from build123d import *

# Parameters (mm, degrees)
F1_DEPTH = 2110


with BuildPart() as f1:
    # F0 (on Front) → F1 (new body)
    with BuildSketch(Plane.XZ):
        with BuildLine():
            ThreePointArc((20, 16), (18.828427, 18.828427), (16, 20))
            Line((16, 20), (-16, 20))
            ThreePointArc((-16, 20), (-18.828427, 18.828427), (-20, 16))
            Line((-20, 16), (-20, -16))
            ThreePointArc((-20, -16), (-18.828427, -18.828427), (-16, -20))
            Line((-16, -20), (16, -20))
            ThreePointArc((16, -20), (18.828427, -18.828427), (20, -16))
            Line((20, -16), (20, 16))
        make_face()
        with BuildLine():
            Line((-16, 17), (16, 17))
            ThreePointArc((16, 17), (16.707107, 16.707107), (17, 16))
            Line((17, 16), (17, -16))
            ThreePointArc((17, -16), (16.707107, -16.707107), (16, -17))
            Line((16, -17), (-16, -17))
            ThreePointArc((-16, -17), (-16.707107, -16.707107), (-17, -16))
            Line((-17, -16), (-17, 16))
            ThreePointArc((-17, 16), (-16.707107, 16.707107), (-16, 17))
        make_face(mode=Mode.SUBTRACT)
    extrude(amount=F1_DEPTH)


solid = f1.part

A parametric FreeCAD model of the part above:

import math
import FreeCAD as App
import Part
import Sketcher
from FreeCAD import Vector
Q = App.Units.Quantity

doc = App.newDocument("Part")
params = doc.addObject("Spreadsheet::Sheet", "Params")
for row, (alias, value) in enumerate([
    ("sketch1_radius", "4 mm"),
    ("sketch1_radius2", "0.999999 mm"),
    ("sketch1_width", "32 mm"),
    ("pad1_length", "2110 mm"),
], start=1):
    params.set(f"A{row}", alias)
    params.set(f"B{row}", "=" + value)
    params.setAlias(f"B{row}", alias)

body = doc.addObject("PartDesign::Body", "Body")

# Sketch on XZ plane
sketch1 = body.newObject("Sketcher::SketchObject", "Sketch")
sketch1.AttachmentSupport = (doc.getObject("XZ_Plane"), [""])
sketch1.MapMode = "FlatFace"
sketch1.addGeometry([
    Part.ArcOfCircle(Part.Circle(Vector(16, 16, 0), Vector(0, 0, 1), 4), math.radians(0), math.radians(90)),  # 0
    Part.LineSegment(Vector(16, 20, 0), Vector(-16, 20, 0)),  # 1
    Part.ArcOfCircle(Part.Circle(Vector(-16, 16, 0), Vector(0, 0, 1), 4), math.radians(90), math.radians(180)),  # 2
    Part.LineSegment(Vector(-20, 16, 0), Vector(-20, -16, 0)),  # 3
    Part.ArcOfCircle(Part.Circle(Vector(-16, -16, 0), Vector(0, 0, 1), 4), math.radians(-180), math.radians(-90)),  # 4
    Part.LineSegment(Vector(-16, -20, 0), Vector(16, -20, 0)),  # 5
    Part.ArcOfCircle(Part.Circle(Vector(16, -16, 0), Vector(0, 0, 1), 4), math.radians(-90), math.radians(0)),  # 6
    Part.LineSegment(Vector(20, -16, 0), Vector(20, 16, 0)),  # 7
    Part.ArcOfCircle(Part.Circle(Vector(-16, 16, 0), Vector(0, 0, 1), 1), math.radians(90), math.radians(180)),  # 8
    Part.LineSegment(Vector(-16, 17, 0), Vector(16, 17, 0)),  # 9
    Part.ArcOfCircle(Part.Circle(Vector(16, 16, 0), Vector(0, 0, 1), 1), math.radians(0), math.radians(90)),  # 10
    Part.LineSegment(Vector(17, 16, 0), Vector(17, -16, 0)),  # 11
    Part.ArcOfCircle(Part.Circle(Vector(16, -16, 0), Vector(0, 0, 1), 1), math.radians(-90), math.radians(0)),  # 12
    Part.LineSegment(Vector(16, -17, 0), Vector(-16, -17, 0)),  # 13
    Part.ArcOfCircle(Part.Circle(Vector(-16, -16, 0), Vector(0, 0, 1), 1), math.radians(180), math.radians(270)),  # 14
    Part.LineSegment(Vector(-17, -16, 0), Vector(-17, 16, 0)),  # 15
], False)
sketch1.addConstraint([
    Sketcher.Constraint("Tangent", 0, 2, 1, 1),
    Sketcher.Constraint("Tangent", 1, 2, 2, 1),
    Sketcher.Constraint("Tangent", 2, 2, 3, 1),
    Sketcher.Constraint("Tangent", 3, 2, 4, 1),
    Sketcher.Constraint("Tangent", 4, 2, 5, 1),
    Sketcher.Constraint("Tangent", 5, 2, 6, 1),
    Sketcher.Constraint("Tangent", 6, 2, 7, 1),
    Sketcher.Constraint("Tangent", 7, 2, 0, 1),
    Sketcher.Constraint("Tangent", 8, 1, 9, 1),
    Sketcher.Constraint("Tangent", 9, 2, 10, 2),
    Sketcher.Constraint("Tangent", 10, 1, 11, 1),
    Sketcher.Constraint("Tangent", 11, 2, 12, 2),
    Sketcher.Constraint("Tangent", 12, 1, 13, 1),
    Sketcher.Constraint("Tangent", 13, 2, 14, 2),
    Sketcher.Constraint("Tangent", 14, 1, 15, 1),
    Sketcher.Constraint("Tangent", 15, 2, 8, 2),
    Sketcher.Constraint("Horizontal", 1),
    Sketcher.Constraint("Vertical", 3),
    Sketcher.Constraint("Horizontal", 5),
    Sketcher.Constraint("Vertical", 7),
    Sketcher.Constraint("Horizontal", 9),
    Sketcher.Constraint("Vertical", 11),
    Sketcher.Constraint("Horizontal", 13),
    Sketcher.Constraint("Vertical", 15),
    Sketcher.Constraint("Coincident", 8, 3, 2, 3),
    Sketcher.Constraint("Coincident", 10, 3, 0, 3),
    Sketcher.Constraint("Coincident", 12, 3, 6, 3),
    Sketcher.Constraint("Equal", 0, 2),
    Sketcher.Constraint("Equal", 2, 4),
    Sketcher.Constraint("Equal", 4, 6),
    Sketcher.Constraint("Equal", 12, 14),
    Sketcher.Constraint("Symmetric", 0, 3, 4, 3, -1, 1),
    Sketcher.Constraint("Equal", 13, 3),
    Sketcher.Constraint("Radius", 0, Q("4 mm")),
    Sketcher.Constraint("Radius", 8, Q("0.999999 mm")),
    Sketcher.Constraint("DistanceX", 1, 2, 1, 1, Q("32 mm")),
])
sketch1.setExpression("Constraints[33]", "Params.sketch1_radius")
sketch1.setExpression("Constraints[34]", "Params.sketch1_radius2")
sketch1.setExpression("Constraints[35]", "Params.sketch1_width")
pad1 = body.newObject("PartDesign::Pad", "Pad")
pad1.Profile = sketch1
pad1.setExpression("Length", "Params.pad1_length")

doc.recompute()
